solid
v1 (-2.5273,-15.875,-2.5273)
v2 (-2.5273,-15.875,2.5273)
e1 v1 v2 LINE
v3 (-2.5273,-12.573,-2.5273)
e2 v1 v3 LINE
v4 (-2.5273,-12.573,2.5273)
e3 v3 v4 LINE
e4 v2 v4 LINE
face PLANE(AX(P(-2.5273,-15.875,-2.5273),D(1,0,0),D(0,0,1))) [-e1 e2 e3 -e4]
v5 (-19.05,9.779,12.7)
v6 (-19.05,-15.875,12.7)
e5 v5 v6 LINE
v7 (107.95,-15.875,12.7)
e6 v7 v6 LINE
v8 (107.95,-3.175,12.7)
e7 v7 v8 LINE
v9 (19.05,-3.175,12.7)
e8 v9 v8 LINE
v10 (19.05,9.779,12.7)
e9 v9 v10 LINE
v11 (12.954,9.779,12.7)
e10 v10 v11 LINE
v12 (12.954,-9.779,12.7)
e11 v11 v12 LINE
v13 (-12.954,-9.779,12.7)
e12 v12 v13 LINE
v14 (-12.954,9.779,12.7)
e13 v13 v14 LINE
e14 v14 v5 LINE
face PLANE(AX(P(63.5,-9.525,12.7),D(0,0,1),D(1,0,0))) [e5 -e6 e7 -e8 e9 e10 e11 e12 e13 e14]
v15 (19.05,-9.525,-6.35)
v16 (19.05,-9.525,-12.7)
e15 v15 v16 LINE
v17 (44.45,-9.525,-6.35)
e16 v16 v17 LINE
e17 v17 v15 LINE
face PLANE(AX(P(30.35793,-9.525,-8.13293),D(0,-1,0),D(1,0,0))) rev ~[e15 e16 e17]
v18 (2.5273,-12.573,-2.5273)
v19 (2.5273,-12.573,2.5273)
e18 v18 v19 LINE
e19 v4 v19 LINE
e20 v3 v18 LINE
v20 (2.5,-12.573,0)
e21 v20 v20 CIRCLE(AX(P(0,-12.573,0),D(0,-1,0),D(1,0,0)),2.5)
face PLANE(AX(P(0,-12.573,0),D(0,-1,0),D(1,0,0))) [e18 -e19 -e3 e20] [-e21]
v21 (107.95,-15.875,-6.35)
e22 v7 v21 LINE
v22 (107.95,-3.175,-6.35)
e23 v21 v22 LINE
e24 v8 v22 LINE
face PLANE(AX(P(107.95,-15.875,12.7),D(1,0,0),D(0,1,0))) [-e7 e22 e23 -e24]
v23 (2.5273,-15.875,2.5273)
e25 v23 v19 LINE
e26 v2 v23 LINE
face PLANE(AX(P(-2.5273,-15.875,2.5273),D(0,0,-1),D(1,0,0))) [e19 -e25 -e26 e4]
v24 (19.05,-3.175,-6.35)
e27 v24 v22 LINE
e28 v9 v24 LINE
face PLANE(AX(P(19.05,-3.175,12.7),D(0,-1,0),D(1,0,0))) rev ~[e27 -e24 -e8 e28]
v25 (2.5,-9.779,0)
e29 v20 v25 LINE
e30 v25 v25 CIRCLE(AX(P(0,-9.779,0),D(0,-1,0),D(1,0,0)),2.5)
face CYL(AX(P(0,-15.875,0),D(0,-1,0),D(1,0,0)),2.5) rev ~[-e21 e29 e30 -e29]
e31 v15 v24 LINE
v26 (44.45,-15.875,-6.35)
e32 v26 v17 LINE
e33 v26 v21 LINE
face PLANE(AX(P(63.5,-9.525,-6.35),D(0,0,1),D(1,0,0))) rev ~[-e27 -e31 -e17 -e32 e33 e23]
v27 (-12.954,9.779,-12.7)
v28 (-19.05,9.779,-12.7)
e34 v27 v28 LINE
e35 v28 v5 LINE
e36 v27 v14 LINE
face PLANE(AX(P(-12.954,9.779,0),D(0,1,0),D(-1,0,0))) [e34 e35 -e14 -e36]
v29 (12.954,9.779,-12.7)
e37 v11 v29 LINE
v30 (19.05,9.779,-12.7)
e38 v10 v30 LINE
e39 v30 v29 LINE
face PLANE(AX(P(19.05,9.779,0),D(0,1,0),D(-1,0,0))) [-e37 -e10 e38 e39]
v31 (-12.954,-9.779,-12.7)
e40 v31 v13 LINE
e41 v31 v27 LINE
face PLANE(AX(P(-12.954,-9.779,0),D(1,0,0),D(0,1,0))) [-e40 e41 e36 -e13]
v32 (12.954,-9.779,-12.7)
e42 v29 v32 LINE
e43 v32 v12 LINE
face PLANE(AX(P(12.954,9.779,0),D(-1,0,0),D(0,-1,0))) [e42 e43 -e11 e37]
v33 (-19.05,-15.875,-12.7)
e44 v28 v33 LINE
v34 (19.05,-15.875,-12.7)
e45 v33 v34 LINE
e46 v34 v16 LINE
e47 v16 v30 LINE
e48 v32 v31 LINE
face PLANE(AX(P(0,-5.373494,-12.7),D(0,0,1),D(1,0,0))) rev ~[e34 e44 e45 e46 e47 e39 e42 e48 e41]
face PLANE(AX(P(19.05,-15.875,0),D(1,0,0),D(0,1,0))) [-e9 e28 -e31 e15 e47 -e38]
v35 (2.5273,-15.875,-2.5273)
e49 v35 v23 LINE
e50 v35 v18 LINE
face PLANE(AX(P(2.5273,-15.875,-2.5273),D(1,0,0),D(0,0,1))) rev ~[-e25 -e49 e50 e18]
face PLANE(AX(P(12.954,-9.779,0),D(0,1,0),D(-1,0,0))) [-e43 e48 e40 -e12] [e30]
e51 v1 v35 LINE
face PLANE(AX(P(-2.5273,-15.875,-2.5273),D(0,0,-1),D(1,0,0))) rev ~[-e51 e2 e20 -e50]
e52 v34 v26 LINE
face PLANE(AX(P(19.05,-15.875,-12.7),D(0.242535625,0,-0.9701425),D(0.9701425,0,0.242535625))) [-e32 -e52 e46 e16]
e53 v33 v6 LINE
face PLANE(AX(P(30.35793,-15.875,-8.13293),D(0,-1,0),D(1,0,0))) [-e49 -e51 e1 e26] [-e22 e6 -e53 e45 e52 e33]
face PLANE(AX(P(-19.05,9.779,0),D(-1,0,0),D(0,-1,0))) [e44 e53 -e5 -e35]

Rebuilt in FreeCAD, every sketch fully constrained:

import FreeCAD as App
import Part
import Sketcher
Q = App.Units.Quantity

doc = App.newDocument("Part")
body = doc.addObject("PartDesign::Body", "Body")

sketch1 = body.newObject("Sketcher::SketchObject", "Sketch")
sketch1.AttachmentSupport = (doc.getObject("XY_Plane"), [""])
sketch1.MapMode = "FlatFace"
sketch1.addGeometry([
    Part.LineSegment(App.Vector(13, 10, 0), App.Vector(13, -10, 0)),
    Part.LineSegment(App.Vector(13, -10, 0), App.Vector(-13, -10, 0)),
    Part.LineSegment(App.Vector(-13, -10, 0), App.Vector(-13, 10, 0)),
    Part.LineSegment(App.Vector(-13, 10, 0), App.Vector(-19, 10, 0)),
    Part.LineSegment(App.Vector(-19, 10, 0), App.Vector(-19, -16, 0)),
    Part.LineSegment(App.Vector(-19, -16, 0), App.Vector(19, -16, 0)),
    Part.LineSegment(App.Vector(19, -16, 0), App.Vector(19, 10, 0)),
    Part.LineSegment(App.Vector(19, 10, 0), App.Vector(13, 10, 0)),
], False)
sketch1.addConstraint([
    Sketcher.Constraint("Coincident", 0, 2, 1, 1),
    Sketcher.Constraint("Coincident", 1, 2, 2, 1),
    Sketcher.Constraint("Coincident", 2, 2, 3, 1),
    Sketcher.Constraint("Coincident", 3, 2, 4, 1),
    Sketcher.Constraint("Coincident", 4, 2, 5, 1),
    Sketcher.Constraint("Coincident", 5, 2, 6, 1),
    Sketcher.Constraint("Coincident", 6, 2, 7, 1),
    Sketcher.Constraint("Coincident", 7, 2, 0, 1),
    Sketcher.Constraint("Vertical", 0),
    Sketcher.Constraint("Horizontal", 1),
    Sketcher.Constraint("Vertical", 2),
    Sketcher.Constraint("Horizontal", 3),
    Sketcher.Constraint("Vertical", 4),
    Sketcher.Constraint("Horizontal", 5),
    Sketcher.Constraint("Vertical", 6),
    Sketcher.Constraint("Horizontal", 7),
    Sketcher.Constraint("Symmetric", 0, 2, 2, 2, -1, 1),
    Sketcher.Constraint("Symmetric", 3, 2, 6, 2, -2),
    Sketcher.Constraint("DistanceX", 5, 1, 5, 2, Q("1.5 in")),
    Sketcher.Constraint("DistanceX", 1, 2, 1, 1, Q("1.02 in")),
    Sketcher.Constraint("DistanceY", 0, 2, 0, 1, Q("0.77 in")),
    Sketcher.Constraint("DistanceY", 4, 2, 4, 1, Q("1.01 in")),
])
pad1 = body.newObject("PartDesign::Pad", "Pad")
pad1.Profile = sketch1
pad1.Length = Q("1 in")
pad1.Midplane = True

sketch2 = body.newObject("Sketcher::SketchObject", "Sketch001")
sketch2.AttachmentSupport = (doc.getObject("XZ_Plane"), [""])
sketch2.MapMode = "FlatFace"
sketch2.AttachmentOffset = App.Placement(App.Vector(0, 0, 0.625 * 25.4), App.Rotation())
sketch2.addGeometry(Part.Circle(App.Vector(0, 0, 0), App.Vector(0, 0, 1), 2.5), False)
sketch2.addConstraint([
    Sketcher.Constraint("Coincident", 0, 3, -1, 1),
    Sketcher.Constraint("Diameter", 0, Q("5 mm")),
])
pocket1 = body.newObject("PartDesign::Pocket", "Pocket")
pocket1.Profile = sketch2
pocket1.Type = "ThroughAll"

sketch3 = body.newObject("Sketcher::SketchObject", "Sketch002")
sketch3.AttachmentSupport = (doc.getObject("XZ_Plane"), [""])
sketch3.MapMode = "FlatFace"
sketch3.AttachmentOffset = App.Placement(App.Vector(0, 0, 0.625 * 25.4), App.Rotation())
sketch3.addGeometry([
    Part.LineSegment(App.Vector(-3, 3, 0), App.Vector(-3, -3, 0)),
    Part.LineSegment(App.Vector(-3, -3, 0), App.Vector(3, -3, 0)),
    Part.LineSegment(App.Vector(3, -3, 0), App.Vector(3, 3, 0)),
    Part.LineSegment(App.Vector(3, 3, 0), App.Vector(-3, 3, 0)),
], False)
sketch3.addConstraint([
    Sketcher.Constraint("Coincident", 0, 2, 1, 1),
    Sketcher.Constraint("Coincident", 1, 2, 2, 1),
    Sketcher.Constraint("Coincident", 2, 2, 3, 1),
    Sketcher.Constraint("Coincident", 3, 2, 0, 1),
    Sketcher.Constraint("Vertical", 0),
    Sketcher.Constraint("Horizontal", 1),
    Sketcher.Constraint("Vertical", 2),
    Sketcher.Constraint("Horizontal", 3),
    Sketcher.Constraint("Symmetric", 0, 2, 2, 2, -1, 1),
    Sketcher.Constraint("Equal", 3, 0),
    Sketcher.Constraint("DistanceX", 1, 1, 1, 2, Q("0.199 in")),
])
pocket2 = body.newObject("PartDesign::Pocket", "Pocket001")
pocket2.Profile = sketch3
pocket2.Length = Q("0.13 in")

sketch4 = body.newObject("Sketcher::SketchObject", "Sketch003")
sketch4.AttachmentSupport = (doc.getObject("XY_Plane"), [""])
sketch4.MapMode = "FlatFace"
sketch4.AttachmentOffset = App.Placement(App.Vector(0, 0, 0.5 * 25.4), App.Rotation())
sketch4.addGeometry([
    Part.LineSegment(App.Vector(19, -3, 0), App.Vector(19, -16, 0)),
    Part.LineSegment(App.Vector(19, -16, 0), App.Vector(108, -16, 0)),
    Part.LineSegment(App.Vector(108, -16, 0), App.Vector(108, -3, 0)),
    Part.LineSegment(App.Vector(108, -3, 0), App.Vector(19, -3, 0)),
], False)
sketch4.addConstraint([
    Sketcher.Constraint("Coincident", 0, 2, 1, 1),
    Sketcher.Constraint("Coincident", 1, 2, 2, 1),
    Sketcher.Constraint("Coincident", 2, 2, 3, 1),
    Sketcher.Constraint("Coincident", 3, 2, 0, 1),
    Sketcher.Constraint("Vertical", 0),
    Sketcher.Constraint("Horizontal", 1),
    Sketcher.Constraint("Vertical", 2),
    Sketcher.Constraint("Horizontal", 3),
    Sketcher.Constraint("DistanceX", 1, 1, 1, 2, Q("3.5 in")),
    Sketcher.Constraint("DistanceY", 0, 2, 0, 1, Q("0.5 in")),
    Sketcher.Constraint("DistanceX", -1, 1, 0, 2, Q("0.75 in")),
    Sketcher.Constraint("DistanceY", 0, 2, -1, 1, Q("0.625 in")),
])
pad2 = body.newObject("PartDesign::Pad", "Pad001")
pad2.Profile = sketch4
pad2.Length = Q("0.75 in")
pad2.Reversed = True

sketch5 = body.newObject("Sketcher::SketchObject", "Sketch004")
sketch5.AttachmentSupport = (doc.getObject("XZ_Plane"), [""])
sketch5.MapMode = "FlatFace"
sketch5.AttachmentOffset = App.Placement(App.Vector(0, 0, 0.625 * 25.4), App.Rotation())
sketch5.addGeometry([
    Part.LineSegment(App.Vector(19, -6, 0), App.Vector(19, -13, 0)),
    Part.LineSegment(App.Vector(19, -13, 0), App.Vector(44, -6, 0)),
    Part.LineSegment(App.Vector(44, -6, 0), App.Vector(19, -6, 0)),
], False)
sketch5.addConstraint([
    Sketcher.Constraint("Coincident", 0, 2, 1, 1),
    Sketcher.Constraint("Coincident", 1, 2, 2, 1),
    Sketcher.Constraint("Coincident", 2, 2, 0, 1),
    Sketcher.Constraint("Vertical", 0),
    Sketcher.Constraint("Horizontal", 2),
    Sketcher.Constraint("DistanceX", 2, 2, 2, 1, Q("1 in")),
    Sketcher.Constraint("DistanceY", 0, 2, 0, 1, Q("0.25 in")),
    Sketcher.Constraint("DistanceY", 0, 2, -1, 1, Q("0.5 in")),
    Sketcher.Constraint("DistanceX", -1, 1, 0, 2, Q("0.75 in")),
])
pad3 = body.newObject("PartDesign::Pad", "Pad002")
pad3.Profile = sketch5
pad3.Length = Q("0.25 in")
pad3.Reversed = True

doc.recompute()
